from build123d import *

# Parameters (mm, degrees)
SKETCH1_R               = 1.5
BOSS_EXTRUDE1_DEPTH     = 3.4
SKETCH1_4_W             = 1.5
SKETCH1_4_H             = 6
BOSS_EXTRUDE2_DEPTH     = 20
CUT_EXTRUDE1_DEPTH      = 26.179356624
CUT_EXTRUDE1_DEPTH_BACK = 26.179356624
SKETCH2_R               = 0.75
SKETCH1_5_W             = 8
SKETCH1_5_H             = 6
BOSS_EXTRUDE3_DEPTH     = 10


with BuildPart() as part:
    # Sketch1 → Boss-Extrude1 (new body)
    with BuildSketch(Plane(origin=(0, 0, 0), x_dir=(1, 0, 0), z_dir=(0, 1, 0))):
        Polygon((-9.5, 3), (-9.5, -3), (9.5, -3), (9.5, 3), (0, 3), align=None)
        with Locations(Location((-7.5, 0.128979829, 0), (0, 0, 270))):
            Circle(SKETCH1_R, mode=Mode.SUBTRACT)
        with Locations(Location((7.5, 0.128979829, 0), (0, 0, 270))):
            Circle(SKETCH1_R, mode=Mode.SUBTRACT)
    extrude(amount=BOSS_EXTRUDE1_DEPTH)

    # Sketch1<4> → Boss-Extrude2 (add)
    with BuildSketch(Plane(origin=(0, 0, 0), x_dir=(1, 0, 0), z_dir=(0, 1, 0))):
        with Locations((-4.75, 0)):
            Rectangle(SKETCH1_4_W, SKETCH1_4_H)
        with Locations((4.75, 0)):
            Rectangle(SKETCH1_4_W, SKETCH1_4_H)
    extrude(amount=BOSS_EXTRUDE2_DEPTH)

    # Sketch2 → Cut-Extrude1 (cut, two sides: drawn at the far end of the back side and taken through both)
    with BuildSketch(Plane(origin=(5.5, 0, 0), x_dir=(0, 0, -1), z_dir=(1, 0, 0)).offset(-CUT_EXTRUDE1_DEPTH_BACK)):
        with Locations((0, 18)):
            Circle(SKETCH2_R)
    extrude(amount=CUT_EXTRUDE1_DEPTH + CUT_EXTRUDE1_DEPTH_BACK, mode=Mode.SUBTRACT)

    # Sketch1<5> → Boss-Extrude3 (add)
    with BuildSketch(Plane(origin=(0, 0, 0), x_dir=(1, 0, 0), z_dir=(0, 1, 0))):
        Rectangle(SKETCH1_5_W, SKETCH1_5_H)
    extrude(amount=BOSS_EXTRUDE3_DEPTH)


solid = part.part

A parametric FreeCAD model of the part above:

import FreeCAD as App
import Part
import Sketcher

V = App.Vector

doc = App.newDocument("Part")
body = doc.addObject("PartDesign::Body", "Body")

sketch1 = body.newObject("Sketcher::SketchObject", "Sketch")
sketch1.AttachmentSupport = (doc.getObject("XZ_Plane"), [""])
sketch1.MapMode = "FlatFace"
sketch1.addGeometry([
    Part.LineSegment(V(-9.5, -3, 0), V(-9.5, 3, 0)),
    Part.LineSegment(V(-9.5, 3, 0), V(9.5, 3, 0)),
    Part.LineSegment(V(9.5, 3, 0), V(9.5, -3, 0)),
    Part.LineSegment(V(9.5, -3, 0), V(-9.5, -3, 0)),
    Part.Circle(V(-7.5, -0.12898, 0), V(0, 0, 1), 1.5),
    Part.Circle(V(7.5, -0.12898, 0), V(0, 0, 1), 1.5),
], False)
sketch1.addConstraint([
    Sketcher.Constraint("Coincident", 0, 2, 1, 1),
    Sketcher.Constraint("Coincident", 1, 2, 2, 1),
    Sketcher.Constraint("Coincident", 2, 2, 3, 1),
    Sketcher.Constraint("Coincident", 3, 2, 0, 1),
    Sketcher.Constraint("Vertical", 0),
    Sketcher.Constraint("Horizontal", 1),
    Sketcher.Constraint("Vertical", 2),
    Sketcher.Constraint("Horizontal", 3),
    Sketcher.Constraint("Equal", 4, 5),
    Sketcher.Constraint("Symmetric", 0, 2, 2, 2, -1, 1),
    Sketcher.Constraint("Symmetric", 4, 3, 5, 3, -2),
    Sketcher.Constraint("Diameter", 4, 3.0),
    Sketcher.Constraint("DistanceX", 1, 1, 1, 2, 19.0),
    Sketcher.Constraint("DistanceY", 0, 1, 0, 2, 6.0),
    Sketcher.Constraint("DistanceX", 4, 3, 5, 3, 15.0),
    Sketcher.Constraint("DistanceY", 4, 3, -1, 1, 0.12898),
])
pad1 = body.newObject("PartDesign::Pad", "Pad")
pad1.Profile = sketch1
pad1.Length = 3.4
pad1.Reversed = True

sketch2 = body.newObject("Sketcher::SketchObject", "Sketch001")
sketch2.AttachmentSupport = (doc.getObject("XZ_Plane"), [""])
sketch2.MapMode = "FlatFace"
sketch2.addGeometry([
    Part.LineSegment(V(-5.5, -3, 0), V(-5.5, 3, 0)),
    Part.LineSegment(V(-5.5, 3, 0), V(-4, 3, 0)),
    Part.LineSegment(V(-4, 3, 0), V(-4, -3, 0)),
    Part.LineSegment(V(-4, -3, 0), V(-5.5, -3, 0)),
    Part.LineSegment(V(4, -3, 0), V(4, 3, 0)),
    Part.LineSegment(V(4, 3, 0), V(5.5, 3, 0)),
    Part.LineSegment(V(5.5, 3, 0), V(5.5, -3, 0)),
    Part.LineSegment(V(5.5, -3, 0), V(4, -3, 0)),
], False)
sketch2.addConstraint([
    Sketcher.Constraint("Coincident", 0, 2, 1, 1),
    Sketcher.Constraint("Coincident", 1, 2, 2, 1),
    Sketcher.Constraint("Coincident", 2, 2, 3, 1),
    Sketcher.Constraint("Coincident", 3, 2, 0, 1),
    Sketcher.Constraint("Coincident", 4, 2, 5, 1),
    Sketcher.Constraint("Coincident", 5, 2, 6, 1),
    Sketcher.Constraint("Coincident", 6, 2, 7, 1),
    Sketcher.Constraint("Coincident", 7, 2, 4, 1),
    Sketcher.Constraint("Vertical", 0),
    Sketcher.Constraint("Horizontal", 1),
    Sketcher.Constraint("Vertical", 2),
    Sketcher.Constraint("Horizontal", 3),
    Sketcher.Constraint("Vertical", 4),
    Sketcher.Constraint("Horizontal", 5),
    Sketcher.Constraint("Vertical", 6),
    Sketcher.Constraint("Horizontal", 7),
    Sketcher.Constraint("Symmetric", 2, 2, 4, 2, -1, 1),
    Sketcher.Constraint("Symmetric", 0, 2, 6, 2, -1, 1),
    Sketcher.Constraint("Horizontal", 1, 2, 4, 2),
    Sketcher.Constraint("DistanceY", 0, 1, 0, 2, 6.0),
    Sketcher.Constraint("DistanceX", 1, 1, 1, 2, 1.5),
    Sketcher.Constraint("DistanceX", 1, 2, -1, 1, 4.0),
])
pad2 = body.newObject("PartDesign::Pad", "Pad001")
pad2.Profile = sketch2
pad2.Length = 20
pad2.Reversed = True

sketch3 = body.newObject("Sketcher::SketchObject", "Sketch002")
sketch3.AttachmentSupport = (doc.getObject("YZ_Plane"), [""])
sketch3.MapMode = "FlatFace"
sketch3.AttachmentOffset = App.Placement(V(0, 0, 5.5), App.Rotation())
sketch3.addGeometry(Part.Circle(V(18, 0, 0), V(0, 0, 1), 0.75), False)
sketch3.addConstraint([
    Sketcher.Constraint("PointOnObject", 0, 3, -1),
    Sketcher.Constraint("Diameter", 0, 1.5),
    Sketcher.Constraint("DistanceX", -1, 1, 0, 3, 18.0),
])
pocket1 = body.newObject("PartDesign::Pocket", "Pocket")
pocket1.Profile = sketch3
pocket1.Type = "ThroughAll"
pocket1.Midplane = True

sketch4 = body.newObject("Sketcher::SketchObject", "Sketch003")
sketch4.AttachmentSupport = (doc.getObject("XZ_Plane"), [""])
sketch4.MapMode = "FlatFace"
sketch4.addGeometry([
    Part.LineSegment(V(-4, -3, 0), V(-4, 3, 0)),
    Part.LineSegment(V(-4, 3, 0), V(4, 3, 0)),
    Part.LineSegment(V(4, 3, 0), V(4, -3, 0)),
    Part.LineSegment(V(4, -3, 0), V(-4, -3, 0)),
], False)
sketch4.addConstraint([
    Sketcher.Constraint("Coincident", 0, 2, 1, 1),
    Sketcher.Constraint("Coincident", 1, 2, 2, 1),
    Sketcher.Constraint("Coincident", 2, 2, 3, 1),
    Sketcher.Constraint("Coincident", 3, 2, 0, 1),
    Sketcher.Constraint("Vertical", 0),
    Sketcher.Constraint("Horizontal", 1),
    Sketcher.Constraint("Vertical", 2),
    Sketcher.Constraint("Horizontal", 3),
    Sketcher.Constraint("Symmetric", 0, 2, 2, 2, -1, 1),
    Sketcher.Constraint("DistanceX", 1, 1, 1, 2, 8.0),
    Sketcher.Constraint("DistanceY", 0, 1, 0, 2, 6.0),
])
pad3 = body.newObject("PartDesign::Pad", "Pad002")
pad3.Profile = sketch4
pad3.Length = 10
pad3.Reversed = True

doc.recompute()
